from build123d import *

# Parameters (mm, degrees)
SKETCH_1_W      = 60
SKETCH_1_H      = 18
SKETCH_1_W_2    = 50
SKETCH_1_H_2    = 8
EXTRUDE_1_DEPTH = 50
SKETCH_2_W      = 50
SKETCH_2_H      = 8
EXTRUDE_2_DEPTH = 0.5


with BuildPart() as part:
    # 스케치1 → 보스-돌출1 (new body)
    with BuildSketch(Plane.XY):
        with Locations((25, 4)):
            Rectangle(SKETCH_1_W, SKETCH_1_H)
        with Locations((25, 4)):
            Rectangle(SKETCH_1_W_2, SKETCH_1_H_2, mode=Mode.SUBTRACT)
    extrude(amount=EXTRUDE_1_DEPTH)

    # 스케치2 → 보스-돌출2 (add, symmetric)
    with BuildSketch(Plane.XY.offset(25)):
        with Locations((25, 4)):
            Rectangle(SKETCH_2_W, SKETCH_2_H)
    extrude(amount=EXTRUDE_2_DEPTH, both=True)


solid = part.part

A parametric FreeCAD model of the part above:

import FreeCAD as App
import Part
import Sketcher
Q = App.Units.Quantity


def add_polygon(sketch, points):
    """Adds a closed chain of lines whose ends are joined by coincident constraints."""
    first, n = sketch.GeometryCount, len(points)
    for a, b in zip(points, points[1:] + points[:1]):
        sketch.addGeometry(Part.LineSegment(App.Vector(*a, 0), App.Vector(*b, 0)), False)
    for i in range(n):
        sketch.addConstraint(Sketcher.Constraint("Coincident", first + i, 2, first + (i + 1) % n, 1))

doc = App.newDocument("Part")
body = doc.addObject("PartDesign::Body", "Body")

# Sketch on XY plane
sketch1 = body.newObject("Sketcher::SketchObject", "Sketch")
sketch1.AttachmentSupport = (doc.getObject("XY_Plane"), [""])
sketch1.MapMode = "FlatFace"
add_polygon(sketch1, [(-5, 13), (-5, -5), (55, -5), (55, 13)])  # lines 0-3
add_polygon(sketch1, [(50, 0), (0, 0), (0, 8), (50, 8)])  # lines 4-7
sketch1.addConstraint(Sketcher.Constraint("Vertical", 0))
sketch1.addConstraint(Sketcher.Constraint("Horizontal", 1))
sketch1.addConstraint(Sketcher.Constraint("Vertical", 2))
sketch1.addConstraint(Sketcher.Constraint("Horizontal", 3))
sketch1.addConstraint(Sketcher.Constraint("Horizontal", 4))
sketch1.addConstraint(Sketcher.Constraint("Vertical", 5))
sketch1.addConstraint(Sketcher.Constraint("Horizontal", 6))
sketch1.addConstraint(Sketcher.Constraint("Vertical", 7))
sketch1.addConstraint(Sketcher.Constraint("Coincident", 4, 2, -1, 1))
sketch1.addConstraint(Sketcher.Constraint("DistanceX", 1, 1, 1, 2, Q("60 mm")))
sketch1.addConstraint(Sketcher.Constraint("DistanceX", 4, 2, 4, 1, Q("50 mm")))
sketch1.addConstraint(Sketcher.Constraint("DistanceY", 0, 2, 0, 1, Q("18 mm")))
sketch1.addConstraint(Sketcher.Constraint("DistanceY", 5, 1, 5, 2, Q("8 mm")))
sketch1.addConstraint(Sketcher.Constraint("DistanceX", 0, 2, -1, 1, Q("5 mm")))
sketch1.addConstraint(Sketcher.Constraint("DistanceY", 0, 2, -1, 1, Q("5 mm")))
pad1 = body.newObject("PartDesign::Pad", "Pad")
pad1.Profile = sketch1
pad1.Length = 50

# Sketch on XY plane
sketch2 = body.newObject("Sketcher::SketchObject", "Sketch001")
sketch2.AttachmentSupport = (doc.getObject("XY_Plane"), [""])
sketch2.MapMode = "FlatFace"
sketch2.AttachmentOffset = App.Placement(App.Vector(0, 0, 25), App.Rotation())
add_polygon(sketch2, [(0, 8), (0, 0), (50, 0), (50, 8)])  # lines 0-3
sketch2.addConstraint(Sketcher.Constraint("Vertical", 0))
sketch2.addConstraint(Sketcher.Constraint("Horizontal", 1))
sketch2.addConstraint(Sketcher.Constraint("Vertical", 2))
sketch2.addConstraint(Sketcher.Constraint("Horizontal", 3))
sketch2.addConstraint(Sketcher.Constraint("Coincident", 0, 2, -1, 1))
sketch2.addConstraint(Sketcher.Constraint("DistanceX", 1, 1, 1, 2, Q("50 mm")))
sketch2.addConstraint(Sketcher.Constraint("DistanceY", 0, 2, 0, 1, Q("8 mm")))
pad2 = body.newObject("PartDesign::Pad", "Pad001")
pad2.Profile = sketch2
pad2.Length = 1
pad2.Midplane = True

doc.recompute()
